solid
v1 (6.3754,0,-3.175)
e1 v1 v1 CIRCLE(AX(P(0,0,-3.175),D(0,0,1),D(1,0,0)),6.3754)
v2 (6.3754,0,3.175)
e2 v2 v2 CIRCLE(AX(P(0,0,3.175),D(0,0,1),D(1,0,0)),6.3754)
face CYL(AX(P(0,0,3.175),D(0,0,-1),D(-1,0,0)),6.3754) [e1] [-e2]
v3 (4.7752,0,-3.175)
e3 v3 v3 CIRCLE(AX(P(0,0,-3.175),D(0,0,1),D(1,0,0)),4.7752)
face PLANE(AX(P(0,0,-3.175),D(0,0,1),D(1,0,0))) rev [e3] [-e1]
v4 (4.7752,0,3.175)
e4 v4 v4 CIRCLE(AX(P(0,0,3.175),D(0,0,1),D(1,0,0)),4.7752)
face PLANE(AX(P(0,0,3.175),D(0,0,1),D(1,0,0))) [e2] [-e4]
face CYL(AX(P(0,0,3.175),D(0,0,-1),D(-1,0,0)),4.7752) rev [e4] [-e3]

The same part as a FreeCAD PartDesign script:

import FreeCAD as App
import Part
import Sketcher
from FreeCAD import Vector
Q = App.Units.Quantity

doc = App.newDocument("Part")
body = doc.addObject("PartDesign::Body", "Body")

# Sketch on XY plane
sketch1 = body.newObject("Sketcher::SketchObject", "Sketch")
sketch1.AttachmentSupport = (doc.getObject("XY_Plane"), [""])
sketch1.MapMode = "FlatFace"
sketch1.addGeometry([
    Part.Circle(Vector(0, 0, 0), Vector(0, 0, 1), 6.4),
    Part.Circle(Vector(0, 0, 0), Vector(0, 0, 1), 4.8),
], False)
sketch1.addConstraint([
    Sketcher.Constraint("Coincident", 0, 3, -1, 1),
    Sketcher.Constraint("Coincident", 1, 3, -1, 1),
    Sketcher.Constraint("Diameter", 0, Q("0.502 in")),
    Sketcher.Constraint("Diameter", 1, Q("0.376 in")),
])
pad1 = body.newObject("PartDesign::Pad", "Pad")
pad1.Profile = sketch1
pad1.Length = Q("0.25 in")
pad1.Midplane = True

doc.recompute()
